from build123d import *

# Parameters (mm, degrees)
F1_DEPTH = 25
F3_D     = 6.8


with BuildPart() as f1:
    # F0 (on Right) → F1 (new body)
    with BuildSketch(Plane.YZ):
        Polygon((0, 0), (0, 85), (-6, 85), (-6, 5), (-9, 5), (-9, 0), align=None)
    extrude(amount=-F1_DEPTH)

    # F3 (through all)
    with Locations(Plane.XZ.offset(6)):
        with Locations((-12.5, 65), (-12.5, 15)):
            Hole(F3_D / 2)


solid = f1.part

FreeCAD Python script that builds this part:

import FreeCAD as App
import Part
import Sketcher
Q = App.Units.Quantity

doc = App.newDocument("Part")
body = doc.addObject("PartDesign::Body", "Body")

# Sketch on YZ plane
sketch1 = body.newObject("Sketcher::SketchObject", "Sketch")
sketch1.AttachmentSupport = (doc.getObject("YZ_Plane"), [""])
sketch1.MapMode = "FlatFace"
sketch1.addGeometry([
    Part.LineSegment(App.Vector(0, 0, 0), App.Vector(0, 85, 0)),  # 0
    Part.LineSegment(App.Vector(0, 85, 0), App.Vector(-6, 85, 0)),  # 1
    Part.LineSegment(App.Vector(-6, 85, 0), App.Vector(-6, 5, 0)),  # 2
    Part.LineSegment(App.Vector(-6, 5, 0), App.Vector(-9, 5, 0)),  # 3
    Part.LineSegment(App.Vector(-9, 5, 0), App.Vector(-9, 0, 0)),  # 4
    Part.LineSegment(App.Vector(-9, 0, 0), App.Vector(0, 0, 0)),  # 5
], False)
sketch1.addConstraint([
    Sketcher.Constraint("Coincident", 0, 2, 1, 1),
    Sketcher.Constraint("Coincident", 1, 2, 2, 1),
    Sketcher.Constraint("Coincident", 2, 2, 3, 1),
    Sketcher.Constraint("Coincident", 3, 2, 4, 1),
    Sketcher.Constraint("Coincident", 4, 2, 5, 1),
    Sketcher.Constraint("Coincident", 5, 2, 0, 1),
    Sketcher.Constraint("Vertical", 0),
    Sketcher.Constraint("Horizontal", 1),
    Sketcher.Constraint("Vertical", 2),
    Sketcher.Constraint("Horizontal", 3),
    Sketcher.Constraint("Vertical", 4),
    Sketcher.Constraint("Horizontal", 5),
    Sketcher.Constraint("Coincident", 5, 2, -1, 1),
    Sketcher.Constraint("DistanceX", 1, 2, 1, 1, Q("6 mm")),
    Sketcher.Constraint("DistanceX", 3, 2, 3, 1, Q("3 mm")),
    Sketcher.Constraint("DistanceY", 0, 1, 0, 2, Q("85 mm")),
    Sketcher.Constraint("DistanceY", 2, 2, 2, 1, Q("80 mm")),
])
pad1 = body.newObject("PartDesign::Pad", "Pad")
pad1.Profile = sketch1
pad1.Length = 25
pad1.Reversed = True

# Sketch on XZ plane
sketch2 = body.newObject("Sketcher::SketchObject", "Sketch001")
sketch2.AttachmentSupport = (doc.getObject("XZ_Plane"), [""])
sketch2.MapMode = "FlatFace"
sketch2.AttachmentOffset = App.Placement(App.Vector(0, 0, 6), App.Rotation())
sketch2.addGeometry([
    Part.Circle(App.Vector(-12.5, 65, 0), App.Vector(0, 0, 1), 3.4),
    Part.Circle(App.Vector(-12.5, 15, 0), App.Vector(0, 0, 1), 3.4),
], False)
sketch2.addConstraint([
    Sketcher.Constraint("Equal", 0, 1),
    Sketcher.Constraint("Vertical", 0, 3, 1, 3),
    Sketcher.Constraint("Diameter", 0, Q("6.8 mm")),
    Sketcher.Constraint("DistanceY", -1, 1, 0, 3, Q("65 mm")),
    Sketcher.Constraint("DistanceY", -1, 1, 1, 3, Q("15 mm")),
    Sketcher.Constraint("DistanceX", 0, 3, -1, 1, Q("12.5 mm")),
])
doc.recompute()
hole = body.newObject("PartDesign::Hole", "Hole")
hole.Profile = sketch2
hole.ThreadType = "None"
hole.Diameter = 6.8
hole.DepthType = "ThroughAll"

doc.recompute()
